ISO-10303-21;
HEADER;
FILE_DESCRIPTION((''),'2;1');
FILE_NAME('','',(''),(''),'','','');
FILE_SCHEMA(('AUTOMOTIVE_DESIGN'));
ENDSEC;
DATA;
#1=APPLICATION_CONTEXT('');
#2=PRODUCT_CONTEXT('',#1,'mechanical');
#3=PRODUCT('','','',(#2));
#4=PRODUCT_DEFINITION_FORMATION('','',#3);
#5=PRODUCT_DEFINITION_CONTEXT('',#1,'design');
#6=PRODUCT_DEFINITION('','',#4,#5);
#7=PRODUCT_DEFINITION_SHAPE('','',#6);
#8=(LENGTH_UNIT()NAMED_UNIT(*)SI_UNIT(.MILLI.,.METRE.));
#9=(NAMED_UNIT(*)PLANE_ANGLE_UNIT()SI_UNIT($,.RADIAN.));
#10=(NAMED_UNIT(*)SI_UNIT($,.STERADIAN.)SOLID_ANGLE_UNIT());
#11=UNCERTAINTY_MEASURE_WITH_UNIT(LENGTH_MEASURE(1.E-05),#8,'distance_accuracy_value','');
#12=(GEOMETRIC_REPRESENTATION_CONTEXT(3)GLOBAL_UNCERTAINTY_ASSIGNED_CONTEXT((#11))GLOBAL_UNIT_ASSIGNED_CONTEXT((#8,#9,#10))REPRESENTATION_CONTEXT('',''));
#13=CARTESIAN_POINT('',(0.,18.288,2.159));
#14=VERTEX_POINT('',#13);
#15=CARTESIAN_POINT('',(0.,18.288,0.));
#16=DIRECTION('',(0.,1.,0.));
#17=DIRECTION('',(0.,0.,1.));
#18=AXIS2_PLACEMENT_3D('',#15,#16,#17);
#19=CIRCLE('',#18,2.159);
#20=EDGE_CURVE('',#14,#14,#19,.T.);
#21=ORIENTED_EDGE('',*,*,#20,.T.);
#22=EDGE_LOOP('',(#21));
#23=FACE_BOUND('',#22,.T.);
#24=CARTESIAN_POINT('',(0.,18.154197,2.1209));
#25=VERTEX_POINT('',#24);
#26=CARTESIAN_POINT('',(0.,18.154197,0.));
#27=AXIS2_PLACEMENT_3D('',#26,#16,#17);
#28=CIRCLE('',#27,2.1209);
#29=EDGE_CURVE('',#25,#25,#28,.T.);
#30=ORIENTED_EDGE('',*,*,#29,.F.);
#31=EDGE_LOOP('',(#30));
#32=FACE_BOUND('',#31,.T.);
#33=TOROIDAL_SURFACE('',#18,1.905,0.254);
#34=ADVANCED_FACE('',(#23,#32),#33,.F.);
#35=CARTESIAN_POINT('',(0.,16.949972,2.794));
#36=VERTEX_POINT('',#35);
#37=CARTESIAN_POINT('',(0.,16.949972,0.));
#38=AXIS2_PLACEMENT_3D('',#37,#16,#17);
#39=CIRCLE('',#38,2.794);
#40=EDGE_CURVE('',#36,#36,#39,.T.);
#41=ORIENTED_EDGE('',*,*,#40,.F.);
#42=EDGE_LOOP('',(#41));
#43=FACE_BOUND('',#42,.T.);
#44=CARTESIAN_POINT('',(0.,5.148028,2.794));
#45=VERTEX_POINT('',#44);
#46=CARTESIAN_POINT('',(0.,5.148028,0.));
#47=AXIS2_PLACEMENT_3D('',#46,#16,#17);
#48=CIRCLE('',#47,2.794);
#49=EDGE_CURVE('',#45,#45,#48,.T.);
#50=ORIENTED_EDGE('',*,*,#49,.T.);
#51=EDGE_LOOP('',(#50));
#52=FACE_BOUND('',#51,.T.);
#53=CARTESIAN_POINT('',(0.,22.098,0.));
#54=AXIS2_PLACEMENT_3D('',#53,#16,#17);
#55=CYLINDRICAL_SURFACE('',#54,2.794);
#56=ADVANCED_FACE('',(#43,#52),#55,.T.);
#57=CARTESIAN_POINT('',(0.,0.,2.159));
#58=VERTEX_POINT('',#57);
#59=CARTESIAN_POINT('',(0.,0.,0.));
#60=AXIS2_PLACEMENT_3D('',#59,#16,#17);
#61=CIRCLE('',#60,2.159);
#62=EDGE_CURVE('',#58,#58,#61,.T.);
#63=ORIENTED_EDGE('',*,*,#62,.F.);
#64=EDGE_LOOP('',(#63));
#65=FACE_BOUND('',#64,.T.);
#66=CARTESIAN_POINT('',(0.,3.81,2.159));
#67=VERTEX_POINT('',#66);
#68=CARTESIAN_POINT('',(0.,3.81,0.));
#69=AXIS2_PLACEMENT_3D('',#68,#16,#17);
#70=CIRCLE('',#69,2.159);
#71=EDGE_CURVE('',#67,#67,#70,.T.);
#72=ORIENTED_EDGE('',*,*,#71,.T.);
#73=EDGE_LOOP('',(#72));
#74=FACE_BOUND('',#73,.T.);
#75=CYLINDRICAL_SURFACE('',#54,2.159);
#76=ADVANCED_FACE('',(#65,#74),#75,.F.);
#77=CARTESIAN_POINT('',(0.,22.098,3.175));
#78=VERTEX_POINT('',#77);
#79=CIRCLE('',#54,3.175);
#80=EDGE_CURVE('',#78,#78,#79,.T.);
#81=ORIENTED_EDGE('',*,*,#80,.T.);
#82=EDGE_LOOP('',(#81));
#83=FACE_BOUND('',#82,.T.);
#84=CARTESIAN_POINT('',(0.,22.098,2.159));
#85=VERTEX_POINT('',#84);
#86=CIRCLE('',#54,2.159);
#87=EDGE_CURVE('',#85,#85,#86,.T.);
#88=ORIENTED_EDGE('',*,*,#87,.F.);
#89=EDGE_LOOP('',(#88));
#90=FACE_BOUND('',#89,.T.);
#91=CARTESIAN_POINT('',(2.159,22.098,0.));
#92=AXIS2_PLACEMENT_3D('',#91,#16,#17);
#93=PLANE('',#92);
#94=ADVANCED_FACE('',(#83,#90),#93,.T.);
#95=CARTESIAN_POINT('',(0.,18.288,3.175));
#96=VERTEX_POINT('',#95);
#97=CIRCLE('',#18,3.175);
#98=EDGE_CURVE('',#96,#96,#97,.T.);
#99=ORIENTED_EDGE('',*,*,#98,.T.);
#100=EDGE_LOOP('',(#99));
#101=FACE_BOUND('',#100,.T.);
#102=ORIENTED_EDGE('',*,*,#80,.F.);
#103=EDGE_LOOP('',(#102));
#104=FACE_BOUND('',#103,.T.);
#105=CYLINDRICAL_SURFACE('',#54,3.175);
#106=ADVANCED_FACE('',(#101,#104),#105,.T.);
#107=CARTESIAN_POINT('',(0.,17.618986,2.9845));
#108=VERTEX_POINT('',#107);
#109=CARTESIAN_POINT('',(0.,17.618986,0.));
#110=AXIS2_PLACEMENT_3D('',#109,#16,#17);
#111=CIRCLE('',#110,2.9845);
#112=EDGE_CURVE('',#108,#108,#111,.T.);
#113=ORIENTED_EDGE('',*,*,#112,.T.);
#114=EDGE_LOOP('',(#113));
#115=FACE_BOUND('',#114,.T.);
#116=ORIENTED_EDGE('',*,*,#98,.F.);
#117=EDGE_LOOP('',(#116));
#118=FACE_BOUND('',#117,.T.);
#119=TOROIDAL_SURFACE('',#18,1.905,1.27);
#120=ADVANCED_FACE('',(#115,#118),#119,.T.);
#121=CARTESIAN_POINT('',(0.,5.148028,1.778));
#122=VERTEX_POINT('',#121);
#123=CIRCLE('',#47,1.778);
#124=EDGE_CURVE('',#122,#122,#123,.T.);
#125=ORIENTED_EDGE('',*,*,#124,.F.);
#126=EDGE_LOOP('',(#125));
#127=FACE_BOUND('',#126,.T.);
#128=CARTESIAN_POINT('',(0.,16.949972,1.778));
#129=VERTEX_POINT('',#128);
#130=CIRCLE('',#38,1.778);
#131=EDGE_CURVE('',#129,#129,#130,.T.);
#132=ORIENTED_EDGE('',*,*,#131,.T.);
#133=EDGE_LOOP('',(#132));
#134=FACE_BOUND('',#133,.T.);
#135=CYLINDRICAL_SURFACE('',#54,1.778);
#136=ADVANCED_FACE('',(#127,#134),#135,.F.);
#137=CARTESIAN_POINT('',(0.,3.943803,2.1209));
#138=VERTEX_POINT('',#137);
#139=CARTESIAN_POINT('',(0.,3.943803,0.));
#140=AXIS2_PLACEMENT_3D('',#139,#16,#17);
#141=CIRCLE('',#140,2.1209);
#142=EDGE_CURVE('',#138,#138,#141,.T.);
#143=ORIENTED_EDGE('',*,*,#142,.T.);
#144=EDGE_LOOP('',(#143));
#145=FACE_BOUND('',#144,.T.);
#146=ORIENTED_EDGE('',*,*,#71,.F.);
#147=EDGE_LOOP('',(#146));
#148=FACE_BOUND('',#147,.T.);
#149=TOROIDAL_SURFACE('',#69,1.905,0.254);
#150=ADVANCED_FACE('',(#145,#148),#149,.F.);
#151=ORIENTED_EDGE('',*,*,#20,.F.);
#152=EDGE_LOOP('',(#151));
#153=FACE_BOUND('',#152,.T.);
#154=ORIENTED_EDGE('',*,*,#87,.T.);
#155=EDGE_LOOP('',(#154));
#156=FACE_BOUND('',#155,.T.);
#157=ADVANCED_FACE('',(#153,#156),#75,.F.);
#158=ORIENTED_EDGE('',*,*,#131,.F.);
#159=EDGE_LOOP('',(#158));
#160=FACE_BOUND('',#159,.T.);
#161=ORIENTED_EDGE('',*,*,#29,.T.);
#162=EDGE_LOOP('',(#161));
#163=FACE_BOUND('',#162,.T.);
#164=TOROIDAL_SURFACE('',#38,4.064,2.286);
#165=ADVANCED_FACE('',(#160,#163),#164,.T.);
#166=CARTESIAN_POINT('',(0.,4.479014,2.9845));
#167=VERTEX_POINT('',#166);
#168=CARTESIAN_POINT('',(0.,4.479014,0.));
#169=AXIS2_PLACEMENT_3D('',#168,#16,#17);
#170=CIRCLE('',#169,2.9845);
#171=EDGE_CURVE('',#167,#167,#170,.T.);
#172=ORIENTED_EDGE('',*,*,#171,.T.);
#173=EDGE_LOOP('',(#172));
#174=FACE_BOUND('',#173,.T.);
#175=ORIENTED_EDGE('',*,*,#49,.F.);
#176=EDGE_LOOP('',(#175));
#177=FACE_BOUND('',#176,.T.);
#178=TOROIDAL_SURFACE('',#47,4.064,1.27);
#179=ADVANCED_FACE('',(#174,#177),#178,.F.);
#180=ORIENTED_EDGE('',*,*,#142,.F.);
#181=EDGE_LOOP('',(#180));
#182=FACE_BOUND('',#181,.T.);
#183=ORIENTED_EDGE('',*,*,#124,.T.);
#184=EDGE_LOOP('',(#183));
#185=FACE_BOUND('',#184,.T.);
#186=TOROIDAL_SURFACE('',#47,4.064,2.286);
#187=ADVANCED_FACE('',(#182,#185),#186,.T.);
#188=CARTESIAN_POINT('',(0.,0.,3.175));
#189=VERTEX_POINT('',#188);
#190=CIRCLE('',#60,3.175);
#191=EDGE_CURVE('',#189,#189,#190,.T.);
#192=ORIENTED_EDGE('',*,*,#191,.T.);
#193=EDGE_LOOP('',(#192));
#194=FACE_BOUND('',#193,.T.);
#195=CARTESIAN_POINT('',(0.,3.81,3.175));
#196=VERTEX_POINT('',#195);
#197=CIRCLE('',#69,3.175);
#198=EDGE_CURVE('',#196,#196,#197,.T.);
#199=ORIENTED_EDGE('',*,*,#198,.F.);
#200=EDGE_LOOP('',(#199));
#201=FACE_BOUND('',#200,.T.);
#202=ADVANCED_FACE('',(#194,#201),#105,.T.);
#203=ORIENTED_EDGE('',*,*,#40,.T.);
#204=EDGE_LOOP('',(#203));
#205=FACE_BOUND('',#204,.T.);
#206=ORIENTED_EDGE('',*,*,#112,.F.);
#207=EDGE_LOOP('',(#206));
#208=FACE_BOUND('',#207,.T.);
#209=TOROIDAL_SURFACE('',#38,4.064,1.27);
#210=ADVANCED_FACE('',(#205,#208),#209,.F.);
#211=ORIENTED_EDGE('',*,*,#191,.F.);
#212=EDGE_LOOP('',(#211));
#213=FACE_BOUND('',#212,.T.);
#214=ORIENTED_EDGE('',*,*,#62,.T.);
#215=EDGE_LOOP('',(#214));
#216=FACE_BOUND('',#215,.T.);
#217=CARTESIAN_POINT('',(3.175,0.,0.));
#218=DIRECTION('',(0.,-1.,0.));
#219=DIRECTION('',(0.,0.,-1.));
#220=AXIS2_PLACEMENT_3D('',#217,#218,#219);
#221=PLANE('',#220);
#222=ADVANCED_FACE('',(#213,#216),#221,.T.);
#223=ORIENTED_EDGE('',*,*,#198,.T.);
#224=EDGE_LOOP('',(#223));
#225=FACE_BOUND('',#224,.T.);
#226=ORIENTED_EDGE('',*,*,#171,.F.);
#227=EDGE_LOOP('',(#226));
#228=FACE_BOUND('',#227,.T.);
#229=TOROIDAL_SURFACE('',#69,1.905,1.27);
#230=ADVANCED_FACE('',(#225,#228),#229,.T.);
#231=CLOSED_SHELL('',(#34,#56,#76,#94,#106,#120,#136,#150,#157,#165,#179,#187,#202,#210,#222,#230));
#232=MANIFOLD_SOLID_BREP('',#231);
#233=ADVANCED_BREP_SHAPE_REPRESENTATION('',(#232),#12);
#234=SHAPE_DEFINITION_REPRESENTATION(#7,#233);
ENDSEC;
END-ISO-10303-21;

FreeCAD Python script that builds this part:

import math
import FreeCAD as App
import Part
import Sketcher
Q = App.Units.Quantity

doc = App.newDocument("Part")
params = doc.addObject("Spreadsheet::Sheet", "Params")
for row, (alias, value) in enumerate([
    ("sketch1_radius", "0.01 in"),
    ("sketch1_radius2", "0.09 in"),
    ("sketch1_height", "0.15 in"),
    ("revolution_angle", "360 deg"),
], start=1):
    params.set(f"A{row}", alias)
    params.set(f"B{row}", "=" + value)
    params.setAlias(f"B{row}", alias)

body = doc.addObject("PartDesign::Body", "Body")

# Sketch on XY plane
sketch1 = doc.addObject("Sketcher::SketchObject", "Sketch")
body.addObject(sketch1)
sketch1.AttachmentSupport = (doc.XY_Plane, [""])
sketch1.MapMode = "FlatFace"
sketch1.addGeometry([
    Part.LineSegment(App.Vector(3.17, 18.29, 0), App.Vector(3.17, 22.1, 0)),  # 0
    Part.LineSegment(App.Vector(3.17, 22.1, 0), App.Vector(2.16, 22.1, 0)),  # 1
    Part.LineSegment(App.Vector(2.16, 22.1, 0), App.Vector(2.16, 18.29, 0)),  # 2
    Part.ArcOfCircle(Part.Circle(App.Vector(1.91, 18.29, 0), App.Vector(0, 0, 1), 0.25), math.radians(-32), math.radians(0)),  # 3
    Part.ArcOfCircle(Part.Circle(App.Vector(4.06, 16.95, 0), App.Vector(0, 0, 1), 2.29), math.radians(148), math.radians(180)),  # 4
    Part.LineSegment(App.Vector(1.78, 16.95, 0), App.Vector(1.78, 5.15, 0)),  # 5
    Part.ArcOfCircle(Part.Circle(App.Vector(4.06, 5.15, 0), App.Vector(0, 0, 1), 2.29), math.radians(180), math.radians(212)),  # 6
    Part.ArcOfCircle(Part.Circle(App.Vector(1.91, 3.81, 0), App.Vector(0, 0, 1), 0.25), math.radians(0), math.radians(32)),  # 7
    Part.LineSegment(App.Vector(2.16, 3.81, 0), App.Vector(2.16, 0, 0)),  # 8
    Part.LineSegment(App.Vector(2.16, 0, 0), App.Vector(3.17, 0, 0)),  # 9
    Part.LineSegment(App.Vector(3.17, 0, 0), App.Vector(3.17, 3.81, 0)),  # 10
    Part.ArcOfCircle(Part.Circle(App.Vector(1.91, 3.81, 0), App.Vector(0, 0, 1), 1.27), math.radians(0), math.radians(32)),  # 11
    Part.ArcOfCircle(Part.Circle(App.Vector(4.06, 5.15, 0), App.Vector(0, 0, 1), 1.27), math.radians(180), math.radians(212)),  # 12
    Part.LineSegment(App.Vector(2.79, 5.15, 0), App.Vector(2.79, 16.95, 0)),  # 13
    Part.ArcOfCircle(Part.Circle(App.Vector(4.06, 16.95, 0), App.Vector(0, 0, 1), 1.27), math.radians(148), math.radians(180)),  # 14
    Part.ArcOfCircle(Part.Circle(App.Vector(1.91, 18.29, 0), App.Vector(0, 0, 1), 1.27), math.radians(-32), math.radians(0)),  # 15
], False)
sketch1.addConstraint([
    Sketcher.Constraint("Coincident", 0, 2, 1, 1),
    Sketcher.Constraint("Coincident", 1, 2, 2, 1),
    Sketcher.Constraint("Tangent", 2, 2, 3, 2),
    Sketcher.Constraint("Tangent", 3, 1, 4, 1),
    Sketcher.Constraint("Tangent", 4, 2, 5, 1),
    Sketcher.Constraint("Tangent", 5, 2, 6, 1),
    Sketcher.Constraint("Tangent", 6, 2, 7, 2),
    Sketcher.Constraint("Tangent", 7, 1, 8, 1),
    Sketcher.Constraint("Coincident", 8, 2, 9, 1),
    Sketcher.Constraint("Coincident", 9, 2, 10, 1),
    Sketcher.Constraint("Tangent", 10, 2, 11, 1),
    Sketcher.Constraint("Tangent", 11, 2, 12, 2),
    Sketcher.Constraint("Tangent", 12, 1, 13, 1),
    Sketcher.Constraint("Tangent", 13, 2, 14, 2),
    Sketcher.Constraint("Tangent", 14, 1, 15, 1),
    Sketcher.Constraint("Tangent", 15, 2, 0, 1),
    Sketcher.Constraint("Vertical", 0),
    Sketcher.Constraint("Horizontal", 1),
    Sketcher.Constraint("Vertical", 2),
    Sketcher.Constraint("Vertical", 5),
    Sketcher.Constraint("Vertical", 8),
    Sketcher.Constraint("Horizontal", 9),
    Sketcher.Constraint("Vertical", 10),
    Sketcher.Constraint("Vertical", 13),
    Sketcher.Constraint("Coincident", 11, 3, 7, 3),
    Sketcher.Constraint("Coincident", 12, 3, 6, 3),
    Sketcher.Constraint("Coincident", 14, 3, 4, 3),
    Sketcher.Constraint("Coincident", 15, 3, 3, 3),
    Sketcher.Constraint("Equal", 4, 6),
    Sketcher.Constraint("Equal", 3, 7),
    Sketcher.Constraint("Equal", 11, 12),
    Sketcher.Constraint("PointOnObject", 8, 2, -1),
    Sketcher.Constraint("Vertical", 3, 3, 7, 3),
    Sketcher.Constraint("Equal", 2, 8),
    Sketcher.Constraint("Radius", 3, Q("0.01 in")),
    Sketcher.Constraint("Radius", 4, Q("0.09 in")),
    Sketcher.Constraint("DistanceY", 0, 1, 0, 2, Q("0.15 in")),
    Sketcher.Constraint("DistanceY", -1, 1, 3, 3, Q("0.72 in")),
    Sketcher.Constraint("DistanceX", -1, 1, 4, 3, Q("0.16 in")),
    Sketcher.Constraint("DistanceX", -1, 1, 3, 3, Q("0.075 in")),
])
sketch1.setExpression("Constraints[34]", "Params.sketch1_radius")
sketch1.setExpression("Constraints[35]", "Params.sketch1_radius2")
sketch1.setExpression("Constraints[36]", "Params.sketch1_height")
revolution = doc.addObject("PartDesign::Revolution", "Revolution")
body.addObject(revolution)
revolution.Profile = sketch1
revolution.ReferenceAxis = (sketch1, ["V_Axis"])
revolution.setExpression("Angle", "Params.revolution_angle")

doc.recompute()
